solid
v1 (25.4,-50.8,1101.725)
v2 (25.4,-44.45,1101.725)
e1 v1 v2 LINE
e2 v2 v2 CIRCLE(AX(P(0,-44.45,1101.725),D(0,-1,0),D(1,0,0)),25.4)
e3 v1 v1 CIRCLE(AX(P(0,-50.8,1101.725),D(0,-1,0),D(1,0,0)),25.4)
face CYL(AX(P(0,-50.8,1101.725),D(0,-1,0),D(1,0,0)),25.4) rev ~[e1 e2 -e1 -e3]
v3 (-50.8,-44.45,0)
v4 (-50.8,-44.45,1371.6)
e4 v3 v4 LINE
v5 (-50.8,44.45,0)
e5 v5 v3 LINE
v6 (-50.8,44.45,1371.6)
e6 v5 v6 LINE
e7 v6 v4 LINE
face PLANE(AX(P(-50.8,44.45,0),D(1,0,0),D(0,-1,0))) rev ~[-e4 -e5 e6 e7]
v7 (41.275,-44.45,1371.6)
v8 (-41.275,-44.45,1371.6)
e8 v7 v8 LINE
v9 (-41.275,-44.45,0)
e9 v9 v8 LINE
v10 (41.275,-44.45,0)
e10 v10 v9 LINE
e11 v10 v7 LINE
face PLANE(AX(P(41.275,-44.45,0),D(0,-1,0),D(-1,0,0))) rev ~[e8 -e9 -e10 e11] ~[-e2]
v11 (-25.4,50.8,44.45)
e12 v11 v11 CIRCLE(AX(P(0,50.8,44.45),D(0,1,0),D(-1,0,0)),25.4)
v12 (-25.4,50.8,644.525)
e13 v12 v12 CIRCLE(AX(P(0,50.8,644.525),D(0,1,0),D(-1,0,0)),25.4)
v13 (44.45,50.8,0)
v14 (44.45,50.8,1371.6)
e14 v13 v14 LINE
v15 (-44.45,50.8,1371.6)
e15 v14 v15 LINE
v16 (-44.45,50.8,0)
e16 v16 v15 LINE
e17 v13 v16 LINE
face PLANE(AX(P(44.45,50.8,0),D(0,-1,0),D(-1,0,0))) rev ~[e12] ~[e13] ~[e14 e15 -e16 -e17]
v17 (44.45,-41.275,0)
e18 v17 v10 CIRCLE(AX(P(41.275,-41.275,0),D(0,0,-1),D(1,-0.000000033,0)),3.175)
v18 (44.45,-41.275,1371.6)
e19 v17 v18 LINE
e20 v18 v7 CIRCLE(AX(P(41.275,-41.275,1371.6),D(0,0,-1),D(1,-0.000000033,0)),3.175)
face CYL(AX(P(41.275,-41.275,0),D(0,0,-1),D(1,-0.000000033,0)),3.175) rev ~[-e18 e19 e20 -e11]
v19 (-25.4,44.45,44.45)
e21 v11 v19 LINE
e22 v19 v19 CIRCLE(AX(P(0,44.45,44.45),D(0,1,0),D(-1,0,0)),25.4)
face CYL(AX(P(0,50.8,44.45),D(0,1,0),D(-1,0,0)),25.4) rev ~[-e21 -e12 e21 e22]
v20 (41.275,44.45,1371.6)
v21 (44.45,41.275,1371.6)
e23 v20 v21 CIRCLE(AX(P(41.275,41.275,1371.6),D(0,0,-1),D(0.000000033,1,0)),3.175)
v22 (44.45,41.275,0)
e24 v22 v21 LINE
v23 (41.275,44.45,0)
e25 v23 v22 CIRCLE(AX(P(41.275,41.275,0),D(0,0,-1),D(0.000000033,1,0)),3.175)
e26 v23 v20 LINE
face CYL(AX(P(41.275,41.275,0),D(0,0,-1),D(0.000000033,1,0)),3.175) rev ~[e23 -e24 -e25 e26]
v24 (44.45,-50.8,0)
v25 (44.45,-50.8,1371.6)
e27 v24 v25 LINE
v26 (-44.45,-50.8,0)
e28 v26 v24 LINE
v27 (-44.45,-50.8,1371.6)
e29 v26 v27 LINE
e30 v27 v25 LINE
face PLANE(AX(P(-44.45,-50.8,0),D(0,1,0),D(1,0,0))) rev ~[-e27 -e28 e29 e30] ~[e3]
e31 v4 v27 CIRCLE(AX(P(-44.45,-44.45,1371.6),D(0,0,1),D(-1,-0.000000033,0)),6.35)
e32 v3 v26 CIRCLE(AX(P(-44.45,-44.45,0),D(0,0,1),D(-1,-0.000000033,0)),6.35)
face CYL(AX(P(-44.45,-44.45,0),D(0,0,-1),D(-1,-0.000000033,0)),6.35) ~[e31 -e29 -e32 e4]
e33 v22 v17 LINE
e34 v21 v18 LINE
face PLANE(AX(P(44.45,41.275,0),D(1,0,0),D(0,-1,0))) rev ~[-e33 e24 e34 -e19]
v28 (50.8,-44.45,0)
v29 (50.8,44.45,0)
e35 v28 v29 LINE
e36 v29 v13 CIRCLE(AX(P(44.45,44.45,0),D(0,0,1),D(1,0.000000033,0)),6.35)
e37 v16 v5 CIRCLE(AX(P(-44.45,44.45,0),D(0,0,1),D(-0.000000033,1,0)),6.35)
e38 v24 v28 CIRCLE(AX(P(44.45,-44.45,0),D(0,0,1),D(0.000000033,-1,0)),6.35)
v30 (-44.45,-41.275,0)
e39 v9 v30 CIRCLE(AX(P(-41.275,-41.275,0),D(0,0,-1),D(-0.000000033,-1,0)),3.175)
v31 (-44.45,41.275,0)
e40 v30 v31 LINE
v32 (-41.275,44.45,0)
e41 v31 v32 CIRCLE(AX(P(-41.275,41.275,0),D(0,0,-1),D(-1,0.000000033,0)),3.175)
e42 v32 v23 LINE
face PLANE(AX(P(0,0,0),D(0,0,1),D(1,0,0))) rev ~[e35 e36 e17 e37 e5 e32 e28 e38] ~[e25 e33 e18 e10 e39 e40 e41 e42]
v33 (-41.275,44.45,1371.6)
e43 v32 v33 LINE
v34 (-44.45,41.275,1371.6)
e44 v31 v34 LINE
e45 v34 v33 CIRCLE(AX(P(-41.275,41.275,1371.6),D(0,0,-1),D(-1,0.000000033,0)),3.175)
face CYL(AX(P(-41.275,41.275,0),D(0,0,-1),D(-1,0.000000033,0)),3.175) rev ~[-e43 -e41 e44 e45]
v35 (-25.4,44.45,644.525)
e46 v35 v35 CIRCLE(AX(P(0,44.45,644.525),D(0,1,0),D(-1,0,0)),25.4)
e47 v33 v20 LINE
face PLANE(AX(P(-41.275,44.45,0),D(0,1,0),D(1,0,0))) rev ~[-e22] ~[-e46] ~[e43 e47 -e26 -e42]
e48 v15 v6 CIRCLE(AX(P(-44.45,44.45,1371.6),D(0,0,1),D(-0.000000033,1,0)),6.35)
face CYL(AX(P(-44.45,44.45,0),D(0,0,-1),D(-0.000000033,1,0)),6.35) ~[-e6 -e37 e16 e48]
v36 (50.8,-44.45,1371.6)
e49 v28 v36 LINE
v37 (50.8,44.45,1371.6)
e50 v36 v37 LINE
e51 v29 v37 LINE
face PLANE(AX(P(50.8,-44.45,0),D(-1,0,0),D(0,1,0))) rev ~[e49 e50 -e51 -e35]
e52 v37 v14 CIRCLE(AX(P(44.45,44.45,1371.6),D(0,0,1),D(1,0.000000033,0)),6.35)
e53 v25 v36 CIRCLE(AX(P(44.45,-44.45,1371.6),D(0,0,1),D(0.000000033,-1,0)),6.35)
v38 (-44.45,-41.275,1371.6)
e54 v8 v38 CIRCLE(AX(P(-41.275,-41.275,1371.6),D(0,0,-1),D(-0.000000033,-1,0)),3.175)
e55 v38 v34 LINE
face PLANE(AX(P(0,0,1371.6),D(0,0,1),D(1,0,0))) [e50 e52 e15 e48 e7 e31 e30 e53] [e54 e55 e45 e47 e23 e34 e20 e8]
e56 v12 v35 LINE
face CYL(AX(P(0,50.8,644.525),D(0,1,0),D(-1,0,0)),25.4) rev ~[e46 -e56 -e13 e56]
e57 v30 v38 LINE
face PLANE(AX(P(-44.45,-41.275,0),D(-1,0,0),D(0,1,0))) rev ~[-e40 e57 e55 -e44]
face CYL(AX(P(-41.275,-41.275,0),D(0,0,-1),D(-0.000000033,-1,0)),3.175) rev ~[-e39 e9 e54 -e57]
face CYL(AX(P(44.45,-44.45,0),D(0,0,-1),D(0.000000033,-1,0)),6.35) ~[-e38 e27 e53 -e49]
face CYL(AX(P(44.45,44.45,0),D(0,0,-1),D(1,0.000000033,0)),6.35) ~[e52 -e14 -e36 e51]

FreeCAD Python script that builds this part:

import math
import FreeCAD as App
import Part
import Sketcher
from FreeCAD import Vector
Q = App.Units.Quantity

doc = App.newDocument("Part")
params = doc.addObject("Spreadsheet::Sheet", "Params")
for row, (alias, value) in enumerate([
    ("sketch1_radius", "0.25 in"),
    ("sketch1_width", "3.5 in"),
    ("sketch1_radius2", "0.125 in"),
    ("pad1_length", "54 in"),
    ("sketch2_diameter", "2 in"),
    ("pocket1_length", "0.25 in"),
    ("sketch3_diameter", "2 in"),
    ("pocket2_length", "0.25 in"),
], start=1):
    params.set(f"A{row}", alias)
    params.set(f"B{row}", "=" + value)
    params.setAlias(f"B{row}", alias)

body = doc.addObject("PartDesign::Body", "Body")

# Sketch on XY plane
sketch1 = body.newObject("Sketcher::SketchObject", "Sketch")
sketch1.AttachmentSupport = (doc.getObject("XY_Plane"), [""])
sketch1.MapMode = "FlatFace"
sketch1.addGeometry([
    Part.LineSegment(Vector(44.5, 50.8, 0), Vector(-44.5, 50.8, 0)),  # 0
    Part.ArcOfCircle(Part.Circle(Vector(-44.4, 44.4, 0), Vector(0, 0, 1), 6.4), math.radians(90), math.radians(180)),  # 1
    Part.LineSegment(Vector(-50.8, 44.5, 0), Vector(-50.8, -44.5, 0)),  # 2
    Part.ArcOfCircle(Part.Circle(Vector(-44.4, -44.4, 0), Vector(0, 0, 1), 6.4), math.radians(-180), math.radians(-90)),  # 3
    Part.LineSegment(Vector(-44.5, -50.8, 0), Vector(44.5, -50.8, 0)),  # 4
    Part.ArcOfCircle(Part.Circle(Vector(44.4, -44.4, 0), Vector(0, 0, 1), 6.4), math.radians(-90), math.radians(0)),  # 5
    Part.LineSegment(Vector(50.8, -44.5, 0), Vector(50.8, 44.5, 0)),  # 6
    Part.ArcOfCircle(Part.Circle(Vector(44.4, 44.4, 0), Vector(0, 0, 1), 6.4), math.radians(0), math.radians(90)),  # 7
    Part.LineSegment(Vector(-44.5, -41.3, 0), Vector(-44.5, 41.3, 0)),  # 8
    Part.ArcOfCircle(Part.Circle(Vector(-41.3, 41.3, 0), Vector(0, 0, 1), 3.2), math.radians(90), math.radians(180)),  # 9
    Part.LineSegment(Vector(-41.3, 44.5, 0), Vector(41.3, 44.5, 0)),  # 10
    Part.ArcOfCircle(Part.Circle(Vector(41.3, 41.3, 0), Vector(0, 0, 1), 3.2), math.radians(0), math.radians(90)),  # 11
    Part.LineSegment(Vector(44.5, 41.3, 0), Vector(44.5, -41.3, 0)),  # 12
    Part.ArcOfCircle(Part.Circle(Vector(41.3, -41.3, 0), Vector(0, 0, 1), 3.2), math.radians(-90), math.radians(0)),  # 13
    Part.LineSegment(Vector(41.3, -44.5, 0), Vector(-41.3, -44.5, 0)),  # 14
    Part.ArcOfCircle(Part.Circle(Vector(-41.3, -41.3, 0), Vector(0, 0, 1), 3.2), math.radians(-180), math.radians(-90)),  # 15
], False)
sketch1.addConstraint([
    Sketcher.Constraint("Tangent", 0, 2, 1, 1),
    Sketcher.Constraint("Tangent", 1, 2, 2, 1),
    Sketcher.Constraint("Tangent", 2, 2, 3, 1),
    Sketcher.Constraint("Tangent", 3, 2, 4, 1),
    Sketcher.Constraint("Tangent", 4, 2, 5, 1),
    Sketcher.Constraint("Tangent", 5, 2, 6, 1),
    Sketcher.Constraint("Tangent", 6, 2, 7, 1),
    Sketcher.Constraint("Tangent", 7, 2, 0, 1),
    Sketcher.Constraint("Tangent", 8, 2, 9, 2),
    Sketcher.Constraint("Tangent", 9, 1, 10, 1),
    Sketcher.Constraint("Tangent", 10, 2, 11, 2),
    Sketcher.Constraint("Tangent", 11, 1, 12, 1),
    Sketcher.Constraint("Tangent", 12, 2, 13, 2),
    Sketcher.Constraint("Tangent", 13, 1, 14, 1),
    Sketcher.Constraint("Tangent", 14, 2, 15, 2),
    Sketcher.Constraint("Tangent", 15, 1, 8, 1),
    Sketcher.Constraint("Horizontal", 0),
    Sketcher.Constraint("Vertical", 2),
    Sketcher.Constraint("Horizontal", 4),
    Sketcher.Constraint("Vertical", 6),
    Sketcher.Constraint("Vertical", 8),
    Sketcher.Constraint("Horizontal", 10),
    Sketcher.Constraint("Vertical", 12),
    Sketcher.Constraint("Horizontal", 14),
    Sketcher.Constraint("Equal", 1, 3),
    Sketcher.Constraint("Equal", 3, 5),
    Sketcher.Constraint("Equal", 5, 7),
    Sketcher.Constraint("Equal", 9, 11),
    Sketcher.Constraint("Equal", 11, 13),
    Sketcher.Constraint("Equal", 13, 15),
    Sketcher.Constraint("Symmetric", 1, 3, 5, 3, -1, 1),
    Sketcher.Constraint("Symmetric", 9, 3, 13, 3, -1, 1),
    Sketcher.Constraint("Horizontal", 6, 2, 9, 1),
    Sketcher.Constraint("Vertical", 3, 2, 8, 2),
    Sketcher.Constraint("Equal", 4, 2),
    Sketcher.Constraint("Radius", 1, Q("0.25 in")),
    Sketcher.Constraint("DistanceX", 0, 2, 0, 1, Q("3.5 in")),
    Sketcher.Constraint("Radius", 9, Q("0.125 in")),
])
sketch1.setExpression("Constraints[35]", "Params.sketch1_radius")
sketch1.setExpression("Constraints[36]", "Params.sketch1_width")
sketch1.setExpression("Constraints[37]", "Params.sketch1_radius2")
pad1 = body.newObject("PartDesign::Pad", "Pad")
pad1.Profile = sketch1
pad1.setExpression("Length", "Params.pad1_length")

# Sketch on XZ plane
sketch2 = body.newObject("Sketcher::SketchObject", "Sketch001")
sketch2.AttachmentSupport = (doc.getObject("XZ_Plane"), [""])
sketch2.MapMode = "FlatFace"
sketch2.AttachmentOffset = App.Placement(Vector(0, 0, -2 * 25.4), App.Rotation())
sketch2.addGeometry([
    Part.Circle(Vector(0, 645, 0), Vector(0, 0, 1), 25),
    Part.Circle(Vector(0, 44, 0), Vector(0, 0, 1), 25),
], False)
sketch2.addConstraint([
    Sketcher.Constraint("Equal", 0, 1),
    Sketcher.Constraint("PointOnObject", 0, 3, -2),
    Sketcher.Constraint("PointOnObject", 1, 3, -2),
    Sketcher.Constraint("Diameter", 0, Q("2 in")),
    Sketcher.Constraint("DistanceY", -1, 1, 1, 3, Q("1.75 in")),
    Sketcher.Constraint("DistanceY", -1, 1, 0, 3, Q("25.375 in")),
])
sketch2.setExpression("Constraints[3]", "Params.sketch2_diameter")
pocket1 = body.newObject("PartDesign::Pocket", "Pocket")
pocket1.Profile = sketch2
pocket1.setExpression("Length", "Params.pocket1_length")
pocket1.Reversed = True

# Sketch on XZ plane
sketch3 = body.newObject("Sketcher::SketchObject", "Sketch002")
sketch3.AttachmentSupport = (doc.getObject("XZ_Plane"), [""])
sketch3.MapMode = "FlatFace"
sketch3.AttachmentOffset = App.Placement(Vector(0, 0, 2 * 25.4), App.Rotation())
sketch3.addGeometry(Part.Circle(Vector(0, 1102, 0), Vector(0, 0, 1), 25), False)
sketch3.addConstraint([
    Sketcher.Constraint("PointOnObject", 0, 3, -2),
    Sketcher.Constraint("Diameter", 0, Q("2 in")),
    Sketcher.Constraint("DistanceY", -1, 1, 0, 3, Q("43.375 in")),
])
sketch3.setExpression("Constraints[1]", "Params.sketch3_diameter")
pocket2 = body.newObject("PartDesign::Pocket", "Pocket001")
pocket2.Profile = sketch3
pocket2.setExpression("Length", "Params.pocket2_length")

doc.recompute()
